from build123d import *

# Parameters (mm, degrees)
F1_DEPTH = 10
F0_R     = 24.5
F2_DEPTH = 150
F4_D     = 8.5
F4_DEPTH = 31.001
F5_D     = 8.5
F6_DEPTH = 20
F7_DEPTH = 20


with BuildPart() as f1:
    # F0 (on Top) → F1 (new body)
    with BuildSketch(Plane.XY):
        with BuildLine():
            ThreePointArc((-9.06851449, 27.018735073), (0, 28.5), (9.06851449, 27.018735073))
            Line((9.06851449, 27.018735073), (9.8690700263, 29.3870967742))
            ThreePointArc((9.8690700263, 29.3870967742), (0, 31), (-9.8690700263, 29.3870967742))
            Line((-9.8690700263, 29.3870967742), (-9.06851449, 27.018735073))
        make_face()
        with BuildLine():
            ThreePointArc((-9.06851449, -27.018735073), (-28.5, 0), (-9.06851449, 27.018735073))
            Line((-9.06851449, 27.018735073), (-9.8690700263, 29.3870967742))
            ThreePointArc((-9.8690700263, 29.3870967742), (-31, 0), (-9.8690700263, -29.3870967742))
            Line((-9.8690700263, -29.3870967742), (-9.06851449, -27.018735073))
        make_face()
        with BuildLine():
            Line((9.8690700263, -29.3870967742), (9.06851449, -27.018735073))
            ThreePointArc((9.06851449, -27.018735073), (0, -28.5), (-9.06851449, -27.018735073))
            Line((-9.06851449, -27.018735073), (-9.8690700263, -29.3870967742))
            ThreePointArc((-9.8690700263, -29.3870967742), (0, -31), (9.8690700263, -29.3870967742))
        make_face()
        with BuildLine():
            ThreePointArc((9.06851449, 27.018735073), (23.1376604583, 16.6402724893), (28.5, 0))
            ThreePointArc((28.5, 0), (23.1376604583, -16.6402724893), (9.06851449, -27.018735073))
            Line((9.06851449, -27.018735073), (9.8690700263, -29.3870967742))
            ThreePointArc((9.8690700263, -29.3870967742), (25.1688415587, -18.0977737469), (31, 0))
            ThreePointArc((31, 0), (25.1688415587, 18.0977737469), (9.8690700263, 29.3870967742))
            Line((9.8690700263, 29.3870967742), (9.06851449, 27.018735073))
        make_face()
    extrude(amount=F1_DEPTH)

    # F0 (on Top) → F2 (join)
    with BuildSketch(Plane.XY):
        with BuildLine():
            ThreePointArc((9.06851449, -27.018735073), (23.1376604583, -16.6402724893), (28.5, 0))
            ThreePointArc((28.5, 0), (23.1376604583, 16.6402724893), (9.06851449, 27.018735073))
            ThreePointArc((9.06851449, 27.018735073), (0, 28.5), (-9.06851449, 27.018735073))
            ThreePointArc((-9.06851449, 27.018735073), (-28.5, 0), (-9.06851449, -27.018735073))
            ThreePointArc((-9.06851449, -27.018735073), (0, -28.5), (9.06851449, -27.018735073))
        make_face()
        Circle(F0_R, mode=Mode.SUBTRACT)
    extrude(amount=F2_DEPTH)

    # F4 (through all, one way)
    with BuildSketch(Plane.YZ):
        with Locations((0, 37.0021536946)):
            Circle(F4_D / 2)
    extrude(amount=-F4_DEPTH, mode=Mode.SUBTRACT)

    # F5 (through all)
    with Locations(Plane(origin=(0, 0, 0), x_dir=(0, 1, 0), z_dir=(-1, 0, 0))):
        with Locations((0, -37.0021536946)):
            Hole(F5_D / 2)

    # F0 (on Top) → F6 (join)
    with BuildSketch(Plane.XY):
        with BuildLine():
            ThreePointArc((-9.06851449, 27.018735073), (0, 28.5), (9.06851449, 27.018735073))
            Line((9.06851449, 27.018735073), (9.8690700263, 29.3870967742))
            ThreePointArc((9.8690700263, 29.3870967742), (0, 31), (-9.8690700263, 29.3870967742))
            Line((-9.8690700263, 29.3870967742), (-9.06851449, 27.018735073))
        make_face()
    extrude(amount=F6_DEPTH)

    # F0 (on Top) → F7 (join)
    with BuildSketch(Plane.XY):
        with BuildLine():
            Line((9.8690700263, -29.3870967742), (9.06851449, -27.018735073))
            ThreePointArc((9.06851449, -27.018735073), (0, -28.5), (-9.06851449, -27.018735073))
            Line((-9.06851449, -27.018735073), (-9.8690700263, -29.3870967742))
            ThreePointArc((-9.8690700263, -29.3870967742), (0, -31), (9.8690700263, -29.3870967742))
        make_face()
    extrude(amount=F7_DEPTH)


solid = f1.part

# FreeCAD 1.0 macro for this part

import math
import FreeCAD as App
import Part
import Sketcher
Q = App.Units.Quantity

doc = App.newDocument("Part")
body = doc.addObject("PartDesign::Body", "Body")

sketch1 = doc.addObject("Sketcher::SketchObject", "Sketch")
body.addObject(sketch1)
sketch1.AttachmentSupport = (doc.XY_Plane, [""])
sketch1.MapMode = "FlatFace"
sketch1.addGeometry(Part.ArcOfCircle(Part.Circle(App.Vector(0, 0, 0), App.Vector(0, 0, 1), 31), math.radians(-109), math.radians(0)), False)
sketch1.addGeometry(Part.ArcOfCircle(Part.Circle(App.Vector(0, 0, 0), App.Vector(0, 0, 1), 31), math.radians(0), math.radians(251)), False)
sketch1.addGeometry(Part.ArcOfCircle(Part.Circle(App.Vector(0, 0, 0), App.Vector(0, 0, 1), 28), math.radians(71), math.radians(109)), False)
sketch1.addGeometry(Part.ArcOfCircle(Part.Circle(App.Vector(0, 0, 0), App.Vector(0, 0, 1), 28), math.radians(0), math.radians(71)), False)
sketch1.addGeometry(Part.ArcOfCircle(Part.Circle(App.Vector(0, 0, 0), App.Vector(0, 0, 1), 28), math.radians(-71), math.radians(0)), False)
sketch1.addGeometry(Part.ArcOfCircle(Part.Circle(App.Vector(0, 0, 0), App.Vector(0, 0, 1), 28), math.radians(-109), math.radians(-71)), False)
sketch1.addGeometry(Part.ArcOfCircle(Part.Circle(App.Vector(0, 0, 0), App.Vector(0, 0, 1), 28), math.radians(109), math.radians(251)), False)
sketch1.addConstraint(Sketcher.Constraint("Tangent", 0, 1, 1, 2))
sketch1.addConstraint(Sketcher.Constraint("Coincident", 1, 1, 0, 2))
sketch1.addConstraint(Sketcher.Constraint("Tangent", 2, 1, 3, 2))
sketch1.addConstraint(Sketcher.Constraint("Tangent", 3, 1, 4, 2))
sketch1.addConstraint(Sketcher.Constraint("Tangent", 4, 1, 5, 2))
sketch1.addConstraint(Sketcher.Constraint("Tangent", 5, 1, 6, 2))
sketch1.addConstraint(Sketcher.Constraint("Tangent", 6, 1, 2, 2))
sketch1.addConstraint(Sketcher.Constraint("Coincident", 0, 3, -1, 1))
sketch1.addConstraint(Sketcher.Constraint("Coincident", 2, 3, -1, 1))
sketch1.addConstraint(Sketcher.Constraint("Coincident", 4, 3, -1, 1))
sketch1.addConstraint(Sketcher.Constraint("PointOnObject", 1, 1, -1))
sketch1.addConstraint(Sketcher.Constraint("PointOnObject", 3, 1, -1))
sketch1.addConstraint(Sketcher.Constraint("Horizontal", 4, 1, 5, 1))
sketch1.addConstraint(Sketcher.Constraint("Horizontal", 2, 1, 6, 1))
sketch1.addConstraint(Sketcher.Constraint("Vertical", 2, 1, 4, 1))
sketch1.addConstraint(Sketcher.Constraint("Radius", 0, Q("31 mm")))
sketch1.addConstraint(Sketcher.Constraint("Radius", 2, Q("28.5 mm")))
sketch1.addConstraint(Sketcher.Constraint("DistanceX", 0, 1, -1, 1, Q("9.86907 mm")))
sketch1.addConstraint(Sketcher.Constraint("DistanceY", 0, 1, 4, 1, Q("2.368362 mm")))
pad1 = doc.addObject("PartDesign::Pad", "Pad")
body.addObject(pad1)
pad1.Profile = sketch1
pad1.Length = 10

sketch2 = doc.addObject("Sketcher::SketchObject", "Sketch001")
body.addObject(sketch2)
sketch2.AttachmentSupport = (doc.XY_Plane, [""])
sketch2.MapMode = "FlatFace"
sketch2.addGeometry(Part.ArcOfCircle(Part.Circle(App.Vector(0, 0, 0), App.Vector(0, 0, 1), 28), math.radians(-71), math.radians(0)), False)
sketch2.addGeometry(Part.ArcOfCircle(Part.Circle(App.Vector(0, 0, 0), App.Vector(0, 0, 1), 28), math.radians(0), math.radians(71)), False)
sketch2.addGeometry(Part.ArcOfCircle(Part.Circle(App.Vector(0, 0, 0), App.Vector(0, 0, 1), 28), math.radians(71), math.radians(109)), False)
sketch2.addGeometry(Part.ArcOfCircle(Part.Circle(App.Vector(0, 0, 0), App.Vector(0, 0, 1), 28), math.radians(109), math.radians(251)), False)
sketch2.addGeometry(Part.ArcOfCircle(Part.Circle(App.Vector(0, 0, 0), App.Vector(0, 0, 1), 28), math.radians(-109), math.radians(-71)), False)
sketch2.addGeometry(Part.Circle(App.Vector(0, 0, 0), App.Vector(0, 0, 1), 24), False)
sketch2.addConstraint(Sketcher.Constraint("Tangent", 0, 2, 1, 1))
sketch2.addConstraint(Sketcher.Constraint("Tangent", 1, 2, 2, 1))
sketch2.addConstraint(Sketcher.Constraint("Tangent", 2, 2, 3, 1))
sketch2.addConstraint(Sketcher.Constraint("Tangent", 3, 2, 4, 1))
sketch2.addConstraint(Sketcher.Constraint("Tangent", 4, 2, 0, 1))
sketch2.addConstraint(Sketcher.Constraint("Coincident", 0, 3, -1, 1))
sketch2.addConstraint(Sketcher.Constraint("Coincident", 2, 3, -1, 1))
sketch2.addConstraint(Sketcher.Constraint("Coincident", 5, 3, -1, 1))
sketch2.addConstraint(Sketcher.Constraint("PointOnObject", 0, 2, -1))
sketch2.addConstraint(Sketcher.Constraint("Horizontal", 1, 2, 2, 2))
sketch2.addConstraint(Sketcher.Constraint("Horizontal", 3, 2, 4, 2))
sketch2.addConstraint(Sketcher.Constraint("Vertical", 2, 2, 3, 2))
sketch2.addConstraint(Sketcher.Constraint("Diameter", 5, Q("49 mm")))
sketch2.addConstraint(Sketcher.Constraint("Radius", 0, Q("28.5 mm")))
sketch2.addConstraint(Sketcher.Constraint("DistanceX", 2, 2, 1, 2, Q("18.137029 mm")))
pad2 = doc.addObject("PartDesign::Pad", "Pad001")
body.addObject(pad2)
pad2.Profile = sketch2
pad2.Length = 150

sketch3 = doc.addObject("Sketcher::SketchObject", "Sketch002")
body.addObject(sketch3)
sketch3.AttachmentSupport = (doc.YZ_Plane, [""])
sketch3.MapMode = "FlatFace"
sketch3.addGeometry(Part.Circle(App.Vector(0, 37, 0), App.Vector(0, 0, 1), 4.2), False)
sketch3.addConstraint(Sketcher.Constraint("PointOnObject", 0, 3, -2))
sketch3.addConstraint(Sketcher.Constraint("Diameter", 0, Q("8.5 mm")))
sketch3.addConstraint(Sketcher.Constraint("DistanceY", -1, 1, 0, 3, Q("37.002154 mm")))
pocket1 = doc.addObject("PartDesign::Pocket", "Pocket")
body.addObject(pocket1)
pocket1.Profile = sketch3
pocket1.Type = "ThroughAll"

sketch4 = doc.addObject("Sketcher::SketchObject", "Sketch003")
body.addObject(sketch4)
sketch4.AttachmentSupport = (doc.YZ_Plane, [""])
sketch4.MapMode = "FlatFace"
sketch4.addGeometry(Part.Circle(App.Vector(0, 37, 0), App.Vector(0, 0, 1), 4.2), False)
sketch4.addConstraint(Sketcher.Constraint("PointOnObject", 0, 3, -2))
sketch4.addConstraint(Sketcher.Constraint("Diameter", 0, Q("8.5 mm")))
sketch4.addConstraint(Sketcher.Constraint("DistanceY", -1, 1, 0, 3, Q("37.002154 mm")))
doc.recompute()
hole = doc.addObject("PartDesign::Hole", "Hole")
body.addObject(hole)
hole.Profile = sketch4
hole.ThreadType = "None"
hole.Diameter = 8.5
hole.DepthType = "ThroughAll"
hole.Reversed = True

sketch5 = doc.addObject("Sketcher::SketchObject", "Sketch004")
body.addObject(sketch5)
sketch5.AttachmentSupport = (doc.XY_Plane, [""])
sketch5.MapMode = "FlatFace"
sketch5.addGeometry(Part.ArcOfCircle(Part.Circle(App.Vector(0, 0, 0), App.Vector(0, 0, 1), 28.5), math.radians(71), math.radians(109)), False)
sketch5.addGeometry(Part.LineSegment(App.Vector(9.1, 27, 0), App.Vector(9.9, 29.4, 0)), False)
sketch5.addGeometry(Part.ArcOfCircle(Part.Circle(App.Vector(0, 0, 0), App.Vector(0, 0, 1), 31), math.radians(71), math.radians(109)), False)
sketch5.addGeometry(Part.LineSegment(App.Vector(-9.9, 29.4, 0), App.Vector(-9.1, 27, 0)), False)
sketch5.addConstraint(Sketcher.Constraint("Coincident", 0, 1, 1, 1))
sketch5.addConstraint(Sketcher.Constraint("Coincident", 1, 2, 2, 1))
sketch5.addConstraint(Sketcher.Constraint("Coincident", 2, 2, 3, 1))
sketch5.addConstraint(Sketcher.Constraint("Coincident", 3, 2, 0, 2))
sketch5.addConstraint(Sketcher.Constraint("Coincident", 0, 3, -1, 1))
sketch5.addConstraint(Sketcher.Constraint("Coincident", 2, 3, -1, 1))
sketch5.addConstraint(Sketcher.Constraint("Horizontal", 1, 2, 2, 2))
sketch5.addConstraint(Sketcher.Constraint("Horizontal", 0, 1, 3, 2))
sketch5.addConstraint(Sketcher.Constraint("Radius", 2, Q("31 mm")))
sketch5.addConstraint(Sketcher.Constraint("Radius", 0, Q("28.5 mm")))
sketch5.addConstraint(Sketcher.Constraint("DistanceX", -1, 1, 1, 2, Q("9.86907 mm")))
sketch5.addConstraint(Sketcher.Constraint("DistanceY", 0, 1, 1, 2, Q("2.368362 mm")))
pad3 = doc.addObject("PartDesign::Pad", "Pad002")
body.addObject(pad3)
pad3.Profile = sketch5
pad3.Length = 20

sketch6 = doc.addObject("Sketcher::SketchObject", "Sketch005")
body.addObject(sketch6)
sketch6.AttachmentSupport = (doc.XY_Plane, [""])
sketch6.MapMode = "FlatFace"
sketch6.addGeometry(Part.LineSegment(App.Vector(9.9, -29.4, 0), App.Vector(9.1, -27, 0)), False)
sketch6.addGeometry(Part.ArcOfCircle(Part.Circle(App.Vector(0, 0, 0), App.Vector(0, 0, 1), 28.5), math.radians(-109), math.radians(-71)), False)
sketch6.addGeometry(Part.LineSegment(App.Vector(-9.1, -27, 0), App.Vector(-9.9, -29.4, 0)), False)
sketch6.addGeometry(Part.ArcOfCircle(Part.Circle(App.Vector(0, 0, 0), App.Vector(0, 0, 1), 31), math.radians(-109), math.radians(-71)), False)
sketch6.addConstraint(Sketcher.Constraint("Coincident", 0, 2, 1, 2))
sketch6.addConstraint(Sketcher.Constraint("Coincident", 1, 1, 2, 1))
sketch6.addConstraint(Sketcher.Constraint("Coincident", 2, 2, 3, 1))
sketch6.addConstraint(Sketcher.Constraint("Coincident", 3, 2, 0, 1))
sketch6.addConstraint(Sketcher.Constraint("Coincident", 1, 3, -1, 1))
sketch6.addConstraint(Sketcher.Constraint("Coincident", 3, 3, -1, 1))
sketch6.addConstraint(Sketcher.Constraint("Horizontal", 0, 2, 1, 1))
sketch6.addConstraint(Sketcher.Constraint("Horizontal", 2, 2, 3, 2))
sketch6.addConstraint(Sketcher.Constraint("Radius", 3, Q("31 mm")))
sketch6.addConstraint(Sketcher.Constraint("Radius", 1, Q("28.5 mm")))
sketch6.addConstraint(Sketcher.Constraint("DistanceX", 2, 2, -1, 1, Q("9.86907 mm")))
sketch6.addConstraint(Sketcher.Constraint("DistanceX", 1, 1, 0, 2, Q("18.137029 mm")))
pad4 = doc.addObject("PartDesign::Pad", "Pad003")
body.addObject(pad4)
pad4.Profile = sketch6
pad4.Length = 20

doc.recompute()
